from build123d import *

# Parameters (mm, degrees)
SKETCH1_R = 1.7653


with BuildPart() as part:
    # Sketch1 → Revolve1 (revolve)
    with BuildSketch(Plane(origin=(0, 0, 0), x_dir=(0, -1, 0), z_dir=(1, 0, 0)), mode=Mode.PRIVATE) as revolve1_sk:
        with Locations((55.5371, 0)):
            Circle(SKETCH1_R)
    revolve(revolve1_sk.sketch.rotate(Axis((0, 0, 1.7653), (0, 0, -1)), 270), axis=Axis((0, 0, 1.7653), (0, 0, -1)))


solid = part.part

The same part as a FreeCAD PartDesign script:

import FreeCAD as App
import Part
import Sketcher

V = App.Vector
Q = App.Units.Quantity

doc = App.newDocument("Part")
body = doc.addObject("PartDesign::Body", "Body")

sketch1 = body.newObject("Sketcher::SketchObject", "Sketch")
sketch1.AttachmentSupport = (doc.getObject("YZ_Plane"), [""])
sketch1.MapMode = "FlatFace"
sketch1.addGeometry(Part.Circle(V(-55.5, 0, 0), V(0, 0, 1), 1.8), False)
sketch1.addConstraint([
    Sketcher.Constraint("PointOnObject", 0, 3, -1),
    Sketcher.Constraint("Diameter", 0, Q("0.139 in")),
    Sketcher.Constraint("DistanceX", 0, 3, -1, 1, Q("2.1865 in")),
])
revolution = body.newObject("PartDesign::Revolution", "Revolution")
revolution.Profile = sketch1
revolution.ReferenceAxis = (sketch1, ["V_Axis"])
revolution.Angle = 360

doc.recompute()
